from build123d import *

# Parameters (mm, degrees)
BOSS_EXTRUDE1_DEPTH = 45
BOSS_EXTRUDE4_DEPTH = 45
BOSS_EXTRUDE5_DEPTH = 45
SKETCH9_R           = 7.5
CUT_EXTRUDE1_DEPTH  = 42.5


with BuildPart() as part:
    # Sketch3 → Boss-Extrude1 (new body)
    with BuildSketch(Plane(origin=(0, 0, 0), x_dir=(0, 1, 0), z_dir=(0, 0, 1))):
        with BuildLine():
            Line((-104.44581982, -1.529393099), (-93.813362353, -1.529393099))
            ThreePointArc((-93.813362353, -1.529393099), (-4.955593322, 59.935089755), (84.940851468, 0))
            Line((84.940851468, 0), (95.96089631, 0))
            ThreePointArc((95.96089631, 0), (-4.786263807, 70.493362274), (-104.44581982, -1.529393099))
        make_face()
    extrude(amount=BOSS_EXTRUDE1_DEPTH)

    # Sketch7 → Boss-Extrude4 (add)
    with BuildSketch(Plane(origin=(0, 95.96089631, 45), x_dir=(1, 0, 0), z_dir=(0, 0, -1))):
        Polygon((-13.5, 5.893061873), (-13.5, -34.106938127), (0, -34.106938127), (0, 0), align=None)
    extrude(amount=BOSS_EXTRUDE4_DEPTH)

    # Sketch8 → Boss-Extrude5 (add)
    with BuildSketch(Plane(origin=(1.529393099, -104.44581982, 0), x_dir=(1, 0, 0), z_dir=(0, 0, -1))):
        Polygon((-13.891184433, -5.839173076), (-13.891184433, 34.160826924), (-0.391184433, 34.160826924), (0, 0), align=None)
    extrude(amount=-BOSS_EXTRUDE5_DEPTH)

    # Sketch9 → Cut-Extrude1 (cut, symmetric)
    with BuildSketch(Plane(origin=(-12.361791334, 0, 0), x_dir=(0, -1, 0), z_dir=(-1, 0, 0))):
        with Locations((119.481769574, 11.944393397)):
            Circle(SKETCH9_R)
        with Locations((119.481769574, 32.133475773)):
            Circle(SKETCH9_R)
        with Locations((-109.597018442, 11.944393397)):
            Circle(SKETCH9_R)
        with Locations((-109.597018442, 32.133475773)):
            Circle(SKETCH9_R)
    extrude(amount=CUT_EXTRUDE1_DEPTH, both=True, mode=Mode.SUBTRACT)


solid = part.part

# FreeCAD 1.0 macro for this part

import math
import FreeCAD as App
import Part
import Sketcher

V = App.Vector


def add_polygon(sketch, points):
    """Adds a closed chain of lines whose ends are joined by coincident constraints."""
    first, n = sketch.GeometryCount, len(points)
    for a, b in zip(points, points[1:] + points[:1]):
        sketch.addGeometry(Part.LineSegment(App.Vector(*a, 0), App.Vector(*b, 0)), False)
    for i in range(n):
        sketch.addConstraint(Sketcher.Constraint("Coincident", first + i, 2, first + (i + 1) % n, 1))

doc = App.newDocument("Part")
body = doc.addObject("PartDesign::Body", "Body")

# Sketch on XY plane
sketch1 = body.newObject("Sketcher::SketchObject", "Sketch")
sketch1.AttachmentSupport = (doc.getObject("XY_Plane"), [""])
sketch1.MapMode = "FlatFace"
sketch1.addGeometry(Part.LineSegment(V(2, -104, 0), V(2, -94, 0)), False)
sketch1.addGeometry(Part.ArcOfCircle(Part.Circle(V(36, -4, 0), V(0, 0, 1), 96), math.radians(112), math.radians(249)), False)
sketch1.addGeometry(Part.LineSegment(V(0, 85, 0), V(0, 96, 0)), False)
sketch1.addGeometry(Part.ArcOfCircle(Part.Circle(V(36, -4, 0), V(0, 0, 1), 106), math.radians(110), math.radians(251)), False)
sketch1.addConstraint(Sketcher.Constraint("Coincident", 0, 2, 1, 2))
sketch1.addConstraint(Sketcher.Constraint("Coincident", 1, 1, 2, 1))
sketch1.addConstraint(Sketcher.Constraint("Coincident", 2, 2, 3, 1))
sketch1.addConstraint(Sketcher.Constraint("Coincident", 3, 2, 0, 1))
sketch1.addConstraint(Sketcher.Constraint("Vertical", 0))
sketch1.addConstraint(Sketcher.Constraint("Vertical", 2))
sketch1.addConstraint(Sketcher.Constraint("PointOnObject", 1, 1, -2))
sketch1.addConstraint(Sketcher.Constraint("Radius", 1, 96.154857))
sketch1.addConstraint(Sketcher.Constraint("Radius", 3, 106.085293))
sketch1.addConstraint(Sketcher.Constraint("DistanceY", 3, 3, 2, 2, 99.937599))
sketch1.addConstraint(Sketcher.Constraint("DistanceY", 0, 1, 0, 2, 10.632457))
sketch1.addConstraint(Sketcher.Constraint("DistanceY", 2, 1, 2, 2, 11.020045))
sketch1.addConstraint(Sketcher.Constraint("DistanceY", -1, 1, 1, 1, 84.940851))
sketch1.addConstraint(Sketcher.Constraint("DistanceY", 3, 2, -1, 1, 104.44582))
pad1 = body.newObject("PartDesign::Pad", "Pad")
pad1.Profile = sketch1
pad1.Length = 45

# Sketch on XY plane
sketch2 = body.newObject("Sketcher::SketchObject", "Sketch001")
sketch2.AttachmentSupport = (doc.getObject("XY_Plane"), [""])
sketch2.MapMode = "FlatFace"
sketch2.AttachmentOffset = App.Placement(V(0, 0, 45), App.Rotation())
add_polygon(sketch2, [(-14, 90), (-14, 130), (0, 130), (0, 96)])  # lines 0-3
sketch2.addConstraint(Sketcher.Constraint("Vertical", 0))
sketch2.addConstraint(Sketcher.Constraint("Horizontal", 1))
sketch2.addConstraint(Sketcher.Constraint("Vertical", 2))
sketch2.addConstraint(Sketcher.Constraint("PointOnObject", 1, 2, -2))
sketch2.addConstraint(Sketcher.Constraint("DistanceY", 0, 1, 0, 2, 40.0))
sketch2.addConstraint(Sketcher.Constraint("DistanceX", 1, 1, 1, 2, 13.5))
sketch2.addConstraint(Sketcher.Constraint("DistanceY", 2, 2, 2, 1, 34.106938))
sketch2.addConstraint(Sketcher.Constraint("DistanceY", -1, 1, 0, 2, 130.067834))
pad2 = body.newObject("PartDesign::Pad", "Pad001")
pad2.Profile = sketch2
pad2.Length = 45
pad2.Reversed = True

# Sketch on XY plane
sketch3 = body.newObject("Sketcher::SketchObject", "Sketch002")
sketch3.AttachmentSupport = (doc.getObject("XY_Plane"), [""])
sketch3.MapMode = "FlatFace"
add_polygon(sketch3, [(-12, -139), (-12, -99), (2, -104), (1, -139)])  # lines 0-3
sketch3.addConstraint(Sketcher.Constraint("Vertical", 0))
sketch3.addConstraint(Sketcher.Constraint("Horizontal", 3))
sketch3.addConstraint(Sketcher.Constraint("DistanceY", 0, 1, 0, 2, 40.0))
sketch3.addConstraint(Sketcher.Constraint("DistanceX", 3, 2, 3, 1, 13.5))
sketch3.addConstraint(Sketcher.Constraint("Distance", 1, 15.068542))
sketch3.addConstraint(Sketcher.Constraint("DistanceX", 0, 2, -1, 1, 12.361791))
sketch3.addConstraint(Sketcher.Constraint("DistanceY", 1, 2, -1, 1, 104.44582))
sketch3.addConstraint(Sketcher.Constraint("Distance", 2, 34.163067))
pad3 = body.newObject("PartDesign::Pad", "Pad002")
pad3.Profile = sketch3
pad3.Length = 45

# Sketch on YZ plane
sketch4 = body.newObject("Sketcher::SketchObject", "Sketch003")
sketch4.AttachmentSupport = (doc.getObject("YZ_Plane"), [""])
sketch4.MapMode = "FlatFace"
sketch4.AttachmentOffset = App.Placement(V(0, 0, -12.361791), App.Rotation())
sketch4.addGeometry(Part.Circle(V(-119, 12, 0), V(0, 0, 1), 8), False)
sketch4.addGeometry(Part.Circle(V(-119, 32, 0), V(0, 0, 1), 8), False)
sketch4.addGeometry(Part.Circle(V(110, 12, 0), V(0, 0, 1), 8), False)
sketch4.addGeometry(Part.Circle(V(110, 32, 0), V(0, 0, 1), 8), False)
sketch4.addConstraint(Sketcher.Constraint("Equal", 0, 1))
sketch4.addConstraint(Sketcher.Constraint("Equal", 1, 2))
sketch4.addConstraint(Sketcher.Constraint("Equal", 2, 3))
sketch4.addConstraint(Sketcher.Constraint("Horizontal", 0, 3, 2, 3))
sketch4.addConstraint(Sketcher.Constraint("Horizontal", 1, 3, 3, 3))
sketch4.addConstraint(Sketcher.Constraint("Vertical", 0, 3, 1, 3))
sketch4.addConstraint(Sketcher.Constraint("Vertical", 2, 3, 3, 3))
sketch4.addConstraint(Sketcher.Constraint("Diameter", 0, 15.0))
sketch4.addConstraint(Sketcher.Constraint("DistanceX", 0, 3, -1, 1, 119.48177))
sketch4.addConstraint(Sketcher.Constraint("DistanceX", -1, 1, 2, 3, 109.597018))
sketch4.addConstraint(Sketcher.Constraint("DistanceY", -1, 1, 0, 3, 11.944393))
sketch4.addConstraint(Sketcher.Constraint("DistanceY", -1, 1, 1, 3, 32.133476))
pocket1 = body.newObject("PartDesign::Pocket", "Pocket")
pocket1.Profile = sketch4
pocket1.Length = 85
pocket1.Midplane = True

doc.recompute()
